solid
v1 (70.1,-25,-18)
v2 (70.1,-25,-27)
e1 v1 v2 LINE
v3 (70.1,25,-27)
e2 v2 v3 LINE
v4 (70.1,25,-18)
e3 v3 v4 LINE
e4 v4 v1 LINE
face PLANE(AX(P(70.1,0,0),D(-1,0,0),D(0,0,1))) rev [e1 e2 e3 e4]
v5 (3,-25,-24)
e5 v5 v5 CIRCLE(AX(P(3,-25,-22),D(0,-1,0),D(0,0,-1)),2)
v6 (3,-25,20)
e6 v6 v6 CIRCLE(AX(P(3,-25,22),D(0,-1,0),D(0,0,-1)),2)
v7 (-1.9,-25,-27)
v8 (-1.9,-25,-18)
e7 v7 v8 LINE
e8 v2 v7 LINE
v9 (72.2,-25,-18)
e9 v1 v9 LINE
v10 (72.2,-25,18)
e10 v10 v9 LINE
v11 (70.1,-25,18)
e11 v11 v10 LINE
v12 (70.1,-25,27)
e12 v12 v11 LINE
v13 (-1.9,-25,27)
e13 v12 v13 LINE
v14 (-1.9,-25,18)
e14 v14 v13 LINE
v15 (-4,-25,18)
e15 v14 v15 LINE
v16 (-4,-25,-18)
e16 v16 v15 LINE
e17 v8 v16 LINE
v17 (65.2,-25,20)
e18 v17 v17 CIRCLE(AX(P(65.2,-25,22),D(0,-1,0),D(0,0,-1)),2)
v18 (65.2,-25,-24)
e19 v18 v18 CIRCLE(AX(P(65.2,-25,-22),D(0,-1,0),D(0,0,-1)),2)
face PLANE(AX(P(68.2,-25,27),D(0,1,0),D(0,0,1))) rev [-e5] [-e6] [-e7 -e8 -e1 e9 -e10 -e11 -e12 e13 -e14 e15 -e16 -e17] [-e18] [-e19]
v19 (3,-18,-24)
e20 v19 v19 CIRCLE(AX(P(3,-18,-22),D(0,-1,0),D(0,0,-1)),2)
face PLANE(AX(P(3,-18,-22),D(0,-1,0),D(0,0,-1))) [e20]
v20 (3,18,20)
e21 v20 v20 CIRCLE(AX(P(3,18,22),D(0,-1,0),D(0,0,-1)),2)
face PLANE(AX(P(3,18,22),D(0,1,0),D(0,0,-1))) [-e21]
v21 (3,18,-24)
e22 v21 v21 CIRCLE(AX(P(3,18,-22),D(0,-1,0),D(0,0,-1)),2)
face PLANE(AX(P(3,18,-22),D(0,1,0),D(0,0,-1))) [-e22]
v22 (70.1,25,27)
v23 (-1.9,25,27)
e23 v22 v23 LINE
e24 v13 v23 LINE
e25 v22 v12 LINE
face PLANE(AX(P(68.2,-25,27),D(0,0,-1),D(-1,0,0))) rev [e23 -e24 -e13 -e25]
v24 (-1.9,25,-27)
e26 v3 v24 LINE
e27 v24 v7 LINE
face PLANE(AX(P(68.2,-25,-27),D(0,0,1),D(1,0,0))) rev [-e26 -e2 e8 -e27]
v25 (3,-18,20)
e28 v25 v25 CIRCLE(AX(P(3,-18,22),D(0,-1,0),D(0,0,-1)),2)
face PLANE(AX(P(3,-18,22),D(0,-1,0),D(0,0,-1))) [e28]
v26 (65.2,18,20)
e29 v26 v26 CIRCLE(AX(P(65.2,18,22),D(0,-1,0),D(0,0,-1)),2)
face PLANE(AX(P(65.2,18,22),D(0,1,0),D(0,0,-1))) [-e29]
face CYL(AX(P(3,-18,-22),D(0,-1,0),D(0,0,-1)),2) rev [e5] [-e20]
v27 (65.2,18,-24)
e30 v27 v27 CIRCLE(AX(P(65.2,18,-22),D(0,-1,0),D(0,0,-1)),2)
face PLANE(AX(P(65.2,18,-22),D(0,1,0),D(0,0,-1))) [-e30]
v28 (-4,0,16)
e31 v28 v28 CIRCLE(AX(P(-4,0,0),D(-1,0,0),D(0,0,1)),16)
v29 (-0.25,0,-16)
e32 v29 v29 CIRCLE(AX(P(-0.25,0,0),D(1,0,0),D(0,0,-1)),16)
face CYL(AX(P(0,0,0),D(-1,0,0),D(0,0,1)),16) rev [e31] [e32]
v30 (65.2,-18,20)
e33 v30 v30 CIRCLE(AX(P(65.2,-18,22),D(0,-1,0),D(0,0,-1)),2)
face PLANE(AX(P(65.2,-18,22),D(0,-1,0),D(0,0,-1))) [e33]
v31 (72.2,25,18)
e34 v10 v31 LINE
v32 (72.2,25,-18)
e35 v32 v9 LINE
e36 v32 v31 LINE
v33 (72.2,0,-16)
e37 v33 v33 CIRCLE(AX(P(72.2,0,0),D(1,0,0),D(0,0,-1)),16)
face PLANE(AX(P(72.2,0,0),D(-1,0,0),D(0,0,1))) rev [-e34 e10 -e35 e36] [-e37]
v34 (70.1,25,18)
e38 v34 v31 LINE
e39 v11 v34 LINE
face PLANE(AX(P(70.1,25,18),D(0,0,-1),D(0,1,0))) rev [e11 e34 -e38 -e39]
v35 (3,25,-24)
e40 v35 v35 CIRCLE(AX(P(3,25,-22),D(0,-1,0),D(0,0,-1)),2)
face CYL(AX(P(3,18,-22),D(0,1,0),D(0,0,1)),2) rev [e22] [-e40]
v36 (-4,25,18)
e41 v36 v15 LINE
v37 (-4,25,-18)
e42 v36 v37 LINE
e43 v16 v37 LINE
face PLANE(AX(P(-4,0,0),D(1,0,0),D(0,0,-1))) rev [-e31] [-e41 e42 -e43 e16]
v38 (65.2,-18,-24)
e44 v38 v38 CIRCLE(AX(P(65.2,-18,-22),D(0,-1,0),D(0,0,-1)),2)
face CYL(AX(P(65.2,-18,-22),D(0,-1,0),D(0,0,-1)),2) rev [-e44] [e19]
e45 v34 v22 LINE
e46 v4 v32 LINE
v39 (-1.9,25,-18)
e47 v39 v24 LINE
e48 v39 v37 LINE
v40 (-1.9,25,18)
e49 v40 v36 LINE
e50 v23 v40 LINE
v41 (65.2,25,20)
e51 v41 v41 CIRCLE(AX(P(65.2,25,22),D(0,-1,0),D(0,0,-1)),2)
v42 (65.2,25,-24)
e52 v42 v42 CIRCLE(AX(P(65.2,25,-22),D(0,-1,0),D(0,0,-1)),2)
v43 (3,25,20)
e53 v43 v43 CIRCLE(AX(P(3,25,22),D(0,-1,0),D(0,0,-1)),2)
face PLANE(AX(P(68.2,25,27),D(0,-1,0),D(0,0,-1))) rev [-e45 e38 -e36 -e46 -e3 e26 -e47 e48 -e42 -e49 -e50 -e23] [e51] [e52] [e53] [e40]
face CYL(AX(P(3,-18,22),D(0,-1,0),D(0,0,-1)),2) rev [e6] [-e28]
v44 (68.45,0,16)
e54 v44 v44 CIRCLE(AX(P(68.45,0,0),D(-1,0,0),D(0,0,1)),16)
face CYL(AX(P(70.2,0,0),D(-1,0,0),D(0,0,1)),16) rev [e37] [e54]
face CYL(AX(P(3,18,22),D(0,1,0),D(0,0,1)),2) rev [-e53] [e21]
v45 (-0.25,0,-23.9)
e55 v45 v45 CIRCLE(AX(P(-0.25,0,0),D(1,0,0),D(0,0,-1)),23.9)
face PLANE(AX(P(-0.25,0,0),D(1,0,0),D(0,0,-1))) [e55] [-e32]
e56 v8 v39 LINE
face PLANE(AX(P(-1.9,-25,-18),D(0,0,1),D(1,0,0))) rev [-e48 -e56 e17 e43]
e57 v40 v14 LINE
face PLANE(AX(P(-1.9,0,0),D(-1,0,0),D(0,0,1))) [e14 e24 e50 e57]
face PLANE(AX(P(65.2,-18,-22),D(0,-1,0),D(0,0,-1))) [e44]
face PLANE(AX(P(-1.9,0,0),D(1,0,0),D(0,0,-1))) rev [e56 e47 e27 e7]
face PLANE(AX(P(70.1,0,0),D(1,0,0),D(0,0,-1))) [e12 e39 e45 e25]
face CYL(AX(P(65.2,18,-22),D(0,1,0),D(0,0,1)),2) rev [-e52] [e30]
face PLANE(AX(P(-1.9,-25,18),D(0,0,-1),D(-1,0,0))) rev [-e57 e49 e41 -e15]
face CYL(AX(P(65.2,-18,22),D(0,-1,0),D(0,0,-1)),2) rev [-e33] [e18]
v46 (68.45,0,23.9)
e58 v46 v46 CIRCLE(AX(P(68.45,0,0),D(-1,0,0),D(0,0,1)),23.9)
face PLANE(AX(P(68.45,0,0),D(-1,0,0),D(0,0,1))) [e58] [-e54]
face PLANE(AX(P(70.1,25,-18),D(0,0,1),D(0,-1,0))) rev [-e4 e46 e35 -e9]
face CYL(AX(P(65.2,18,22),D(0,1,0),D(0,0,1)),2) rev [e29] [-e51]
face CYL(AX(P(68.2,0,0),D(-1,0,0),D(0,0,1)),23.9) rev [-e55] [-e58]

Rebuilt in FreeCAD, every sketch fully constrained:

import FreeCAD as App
import Part
import Sketcher

doc = App.newDocument("Part")
body = doc.addObject("PartDesign::Body", "Body")

# Sketch on YZ plane
sketch1 = body.newObject("Sketcher::SketchObject", "Sketch")
sketch1.AttachmentSupport = (doc.getObject("YZ_Plane"), [""])
sketch1.MapMode = "FlatFace"
sketch1.addGeometry([
    Part.LineSegment(App.Vector(25, 27, 0), App.Vector(-25, 27, 0)),  # 0
    Part.LineSegment(App.Vector(-25, 27, 0), App.Vector(-25, -27, 0)),  # 1
    Part.LineSegment(App.Vector(-25, -27, 0), App.Vector(25, -27, 0)),  # 2
    Part.LineSegment(App.Vector(25, -27, 0), App.Vector(25, 27, 0)),  # 3
    Part.Circle(App.Vector(0, 0, 0), App.Vector(0, 0, 1), 23.9),  # 4
], False)
sketch1.addConstraint([
    Sketcher.Constraint("Coincident", 0, 2, 1, 1),
    Sketcher.Constraint("Coincident", 1, 2, 2, 1),
    Sketcher.Constraint("Coincident", 2, 2, 3, 1),
    Sketcher.Constraint("Coincident", 3, 2, 0, 1),
    Sketcher.Constraint("Horizontal", 0),
    Sketcher.Constraint("Vertical", 1),
    Sketcher.Constraint("Horizontal", 2),
    Sketcher.Constraint("Vertical", 3),
    Sketcher.Constraint("Coincident", 4, 3, -1, 1),
    Sketcher.Constraint("Symmetric", 0, 2, 2, 2, -1, 1),
    Sketcher.Constraint("Diameter", 4, 47.8),
    Sketcher.Constraint("DistanceX", 0, 2, 0, 1, 50.0),
    Sketcher.Constraint("DistanceY", 1, 2, 1, 1, 54.0),
])
pad1 = body.newObject("PartDesign::Pad", "Pad")
pad1.Profile = sketch1
pad1.Length = 68.2

# Sketch on YZ plane
sketch2 = body.newObject("Sketcher::SketchObject", "Sketch001")
sketch2.AttachmentSupport = (doc.getObject("YZ_Plane"), [""])
sketch2.MapMode = "FlatFace"
sketch2.AttachmentOffset = App.Placement(App.Vector(0, 0, 68.2), App.Rotation())
sketch2.addGeometry([
    Part.LineSegment(App.Vector(25, 27, 0), App.Vector(-25, 27, 0)),  # 0
    Part.LineSegment(App.Vector(-25, 27, 0), App.Vector(-25, -27, 0)),  # 1
    Part.LineSegment(App.Vector(-25, -27, 0), App.Vector(25, -27, 0)),  # 2
    Part.LineSegment(App.Vector(25, -27, 0), App.Vector(25, 27, 0)),  # 3
    Part.Circle(App.Vector(0, 0, 0), App.Vector(0, 0, 1), 16),  # 4
], False)
sketch2.addConstraint([
    Sketcher.Constraint("Coincident", 0, 2, 1, 1),
    Sketcher.Constraint("Coincident", 1, 2, 2, 1),
    Sketcher.Constraint("Coincident", 2, 2, 3, 1),
    Sketcher.Constraint("Coincident", 3, 2, 0, 1),
    Sketcher.Constraint("Horizontal", 0),
    Sketcher.Constraint("Vertical", 1),
    Sketcher.Constraint("Horizontal", 2),
    Sketcher.Constraint("Vertical", 3),
    Sketcher.Constraint("Coincident", 4, 3, -1, 1),
    Sketcher.Constraint("Symmetric", 0, 2, 2, 2, -1, 1),
    Sketcher.Constraint("Diameter", 4, 32.0),
    Sketcher.Constraint("DistanceX", 0, 2, 0, 1, 50.0),
    Sketcher.Constraint("DistanceY", 1, 2, 1, 1, 54.0),
])
pad2 = body.newObject("PartDesign::Pad", "Pad001")
pad2.Profile = sketch2
pad2.Length = 2
doc.recompute()

linearpattern = body.newObject("PartDesign::LinearPattern", "LinearPattern")
linearpattern.Originals = [pad2]
linearpattern.Direction = (doc.getObject("X_Axis"), [""])
linearpattern.Mode = "offset"
linearpattern.Offset = 70.2
linearpattern.Occurrences = 2
linearpattern.Reversed = True
body.Tip = linearpattern

# Sketch on XZ plane
sketch3 = body.newObject("Sketcher::SketchObject", "Sketch002")
sketch3.AttachmentSupport = (doc.getObject("XZ_Plane"), [""])
sketch3.MapMode = "FlatFace"
sketch3.AttachmentOffset = App.Placement(App.Vector(0, 0, 25), App.Rotation())
sketch3.addGeometry([
    Part.Circle(App.Vector(3, 22, 0), App.Vector(0, 0, 1), 2),
    Part.Circle(App.Vector(65.2, 22, 0), App.Vector(0, 0, 1), 2),
    Part.Circle(App.Vector(65.2, -22, 0), App.Vector(0, 0, 1), 2),
    Part.Circle(App.Vector(3, -22, 0), App.Vector(0, 0, 1), 2),
], False)
sketch3.addConstraint([
    Sketcher.Constraint("Equal", 0, 1),
    Sketcher.Constraint("Equal", 1, 2),
    Sketcher.Constraint("Equal", 2, 3),
    Sketcher.Constraint("Symmetric", 1, 3, 2, 3, -1),
    Sketcher.Constraint("Symmetric", 0, 3, 3, 3, -1),
    Sketcher.Constraint("Horizontal", 0, 3, 1, 3),
    Sketcher.Constraint("Diameter", 0, 4.0),
    Sketcher.Constraint("DistanceX", -1, 1, 0, 3, 3.0),
    Sketcher.Constraint("DistanceY", -1, 1, 0, 3, 22.0),
    Sketcher.Constraint("DistanceX", -1, 1, 1, 3, 65.2),
])
pocket1 = body.newObject("PartDesign::Pocket", "Pocket")
pocket1.Profile = sketch3
pocket1.Length = 7
doc.recompute()

mirrored = body.newObject("PartDesign::Mirrored", "Mirrored")
mirrored.Originals = [pocket1]
mirrored.MirrorPlane = (doc.getObject("XZ_Plane"), [""])
body.Tip = mirrored

# Sketch on YZ plane
sketch4 = body.newObject("Sketcher::SketchObject", "Sketch003")
sketch4.AttachmentSupport = (doc.getObject("YZ_Plane"), [""])
sketch4.MapMode = "FlatFace"
sketch4.AttachmentOffset = App.Placement(App.Vector(0, 0, -4), App.Rotation())
sketch4.addGeometry([
    Part.LineSegment(App.Vector(25, -27, 0), App.Vector(-25, -27, 0)),  # 0
    Part.LineSegment(App.Vector(-25, -27, 0), App.Vector(-25, 27, 0)),  # 1
    Part.LineSegment(App.Vector(-25, 27, 0), App.Vector(25, 27, 0)),  # 2
    Part.LineSegment(App.Vector(25, 27, 0), App.Vector(25, -27, 0)),  # 3
    Part.Circle(App.Vector(0, 0, 0), App.Vector(0, 0, 1), 16),  # 4
], False)
sketch4.addConstraint([
    Sketcher.Constraint("Coincident", 0, 2, 1, 1),
    Sketcher.Constraint("Coincident", 1, 2, 2, 1),
    Sketcher.Constraint("Coincident", 2, 2, 3, 1),
    Sketcher.Constraint("Coincident", 3, 2, 0, 1),
    Sketcher.Constraint("Horizontal", 0),
    Sketcher.Constraint("Vertical", 1),
    Sketcher.Constraint("Horizontal", 2),
    Sketcher.Constraint("Vertical", 3),
    Sketcher.Constraint("Coincident", 4, 3, -1, 1),
    Sketcher.Constraint("Symmetric", 0, 2, 2, 2, -1, 1),
    Sketcher.Constraint("Diameter", 4, 32.0),
    Sketcher.Constraint("DistanceX", 0, 2, 0, 1, 50.0),
    Sketcher.Constraint("DistanceY", 1, 1, 1, 2, 54.0),
])
pad3 = body.newObject("PartDesign::Pad", "Pad002")
pad3.Profile = sketch4
pad3.Length = 2

# Sketch on YZ plane
sketch5 = body.newObject("Sketcher::SketchObject", "Sketch004")
sketch5.AttachmentSupport = (doc.getObject("YZ_Plane"), [""])
sketch5.MapMode = "FlatFace"
sketch5.AttachmentOffset = App.Placement(App.Vector(0, 0, 70.2), App.Rotation())
sketch5.addGeometry([
    Part.LineSegment(App.Vector(25, 27, 0), App.Vector(-25, 27, 0)),  # 0
    Part.LineSegment(App.Vector(-25, 27, 0), App.Vector(-25, -27, 0)),  # 1
    Part.LineSegment(App.Vector(-25, -27, 0), App.Vector(25, -27, 0)),  # 2
    Part.LineSegment(App.Vector(25, -27, 0), App.Vector(25, 27, 0)),  # 3
    Part.Circle(App.Vector(0, 0, 0), App.Vector(0, 0, 1), 16),  # 4
], False)
sketch5.addConstraint([
    Sketcher.Constraint("Coincident", 0, 2, 1, 1),
    Sketcher.Constraint("Coincident", 1, 2, 2, 1),
    Sketcher.Constraint("Coincident", 2, 2, 3, 1),
    Sketcher.Constraint("Coincident", 3, 2, 0, 1),
    Sketcher.Constraint("Horizontal", 0),
    Sketcher.Constraint("Vertical", 1),
    Sketcher.Constraint("Horizontal", 2),
    Sketcher.Constraint("Vertical", 3),
    Sketcher.Constraint("Coincident", 4, 3, -1, 1),
    Sketcher.Constraint("Symmetric", 0, 2, 2, 2, -1, 1),
    Sketcher.Constraint("Diameter", 4, 32.0),
    Sketcher.Constraint("DistanceX", 0, 2, 0, 1, 50.0),
    Sketcher.Constraint("DistanceY", 1, 2, 1, 1, 54.0),
])
pad4 = body.newObject("PartDesign::Pad", "Pad003")
pad4.Profile = sketch5
pad4.Length = 2

# Sketch on YZ plane
sketch6 = body.newObject("Sketcher::SketchObject", "Sketch005")
sketch6.AttachmentSupport = (doc.getObject("YZ_Plane"), [""])
sketch6.MapMode = "FlatFace"
sketch6.AttachmentOffset = App.Placement(App.Vector(0, 0, 68.2), App.Rotation())
sketch6.addGeometry(Part.Circle(App.Vector(0, 0, 0), App.Vector(0, 0, 1), 23.9), False)
sketch6.addConstraint([
    Sketcher.Constraint("Coincident", 0, 3, -1, 1),
    Sketcher.Constraint("Diameter", 0, 47.8),
])
pocket2 = body.newObject("PartDesign::Pocket", "Pocket001")
pocket2.Profile = sketch6
pocket2.Length = 0.25
pocket2.Reversed = True

# Sketch on YZ plane
sketch7 = body.newObject("Sketcher::SketchObject", "Sketch006")
sketch7.AttachmentSupport = (doc.getObject("YZ_Plane"), [""])
sketch7.MapMode = "FlatFace"
sketch7.AttachmentOffset = App.Placement(App.Vector(0, 0, -0.25), App.Rotation())
sketch7.addGeometry(Part.Circle(App.Vector(0, 0, 0), App.Vector(0, 0, 1), 23.9), False)
sketch7.addConstraint([
    Sketcher.Constraint("Coincident", 0, 3, -1, 1),
    Sketcher.Constraint("Diameter", 0, 47.8),
])
pocket3 = body.newObject("PartDesign::Pocket", "Pocket002")
pocket3.Profile = sketch7
pocket3.Length = 0.25
pocket3.Reversed = True

# Sketch on YZ plane
sketch8 = body.newObject("Sketcher::SketchObject", "Sketch007")
sketch8.AttachmentSupport = (doc.getObject("YZ_Plane"), [""])
sketch8.MapMode = "FlatFace"
sketch8.AttachmentOffset = App.Placement(App.Vector(0, 0, 72.2), App.Rotation())
sketch8.addGeometry([
    Part.LineSegment(App.Vector(25, 27, 0), App.Vector(-25, 27, 0)),  # 0
    Part.LineSegment(App.Vector(-25, 27, 0), App.Vector(-25, 18, 0)),  # 1
    Part.LineSegment(App.Vector(-25, 18, 0), App.Vector(25, 18, 0)),  # 2
    Part.LineSegment(App.Vector(25, 18, 0), App.Vector(25, 27, 0)),  # 3
    Part.LineSegment(App.Vector(25, -18, 0), App.Vector(-25, -18, 0)),  # 4
    Part.LineSegment(App.Vector(-25, -18, 0), App.Vector(-25, -27, 0)),  # 5
    Part.LineSegment(App.Vector(-25, -27, 0), App.Vector(25, -27, 0)),  # 6
    Part.LineSegment(App.Vector(25, -27, 0), App.Vector(25, -18, 0)),  # 7
], False)
sketch8.addConstraint([
    Sketcher.Constraint("Coincident", 0, 2, 1, 1),
    Sketcher.Constraint("Coincident", 1, 2, 2, 1),
    Sketcher.Constraint("Coincident", 2, 2, 3, 1),
    Sketcher.Constraint("Coincident", 3, 2, 0, 1),
    Sketcher.Constraint("Coincident", 4, 2, 5, 1),
    Sketcher.Constraint("Coincident", 5, 2, 6, 1),
    Sketcher.Constraint("Coincident", 6, 2, 7, 1),
    Sketcher.Constraint("Coincident", 7, 2, 4, 1),
    Sketcher.Constraint("Horizontal", 0),
    Sketcher.Constraint("Vertical", 1),
    Sketcher.Constraint("Horizontal", 2),
    Sketcher.Constraint("Vertical", 3),
    Sketcher.Constraint("Horizontal", 4),
    Sketcher.Constraint("Vertical", 5),
    Sketcher.Constraint("Horizontal", 6),
    Sketcher.Constraint("Vertical", 7),
    Sketcher.Constraint("Symmetric", 2, 2, 4, 2, -1, 1),
    Sketcher.Constraint("Symmetric", 0, 2, 6, 2, -1, 1),
    Sketcher.Constraint("Vertical", 1, 2, 4, 2),
    Sketcher.Constraint("DistanceX", 0, 2, 0, 1, 50.0),
    Sketcher.Constraint("DistanceY", 1, 2, 1, 1, 9.0),
    Sketcher.Constraint("DistanceY", -1, 1, 0, 2, 27.0),
])
pocket4 = body.newObject("PartDesign::Pocket", "Pocket003")
pocket4.Profile = sketch8
pocket4.Length = 2.1

# Sketch on YZ plane
sketch9 = body.newObject("Sketcher::SketchObject", "Sketch008")
sketch9.AttachmentSupport = (doc.getObject("YZ_Plane"), [""])
sketch9.MapMode = "FlatFace"
sketch9.AttachmentOffset = App.Placement(App.Vector(0, 0, -4), App.Rotation())
sketch9.addGeometry([
    Part.LineSegment(App.Vector(25, -27, 0), App.Vector(-25, -27, 0)),  # 0
    Part.LineSegment(App.Vector(-25, -27, 0), App.Vector(-25, -18, 0)),  # 1
    Part.LineSegment(App.Vector(-25, -18, 0), App.Vector(25, -18, 0)),  # 2
    Part.LineSegment(App.Vector(25, -18, 0), App.Vector(25, -27, 0)),  # 3
    Part.LineSegment(App.Vector(25, 18, 0), App.Vector(-25, 18, 0)),  # 4
    Part.LineSegment(App.Vector(-25, 18, 0), App.Vector(-25, 27, 0)),  # 5
    Part.LineSegment(App.Vector(-25, 27, 0), App.Vector(25, 27, 0)),  # 6
    Part.LineSegment(App.Vector(25, 27, 0), App.Vector(25, 18, 0)),  # 7
], False)
sketch9.addConstraint([
    Sketcher.Constraint("Coincident", 0, 2, 1, 1),
    Sketcher.Constraint("Coincident", 1, 2, 2, 1),
    Sketcher.Constraint("Coincident", 2, 2, 3, 1),
    Sketcher.Constraint("Coincident", 3, 2, 0, 1),
    Sketcher.Constraint("Coincident", 4, 2, 5, 1),
    Sketcher.Constraint("Coincident", 5, 2, 6, 1),
    Sketcher.Constraint("Coincident", 6, 2, 7, 1),
    Sketcher.Constraint("Coincident", 7, 2, 4, 1),
    Sketcher.Constraint("Horizontal", 0),
    Sketcher.Constraint("Vertical", 1),
    Sketcher.Constraint("Horizontal", 2),
    Sketcher.Constraint("Vertical", 3),
    Sketcher.Constraint("Horizontal", 4),
    Sketcher.Constraint("Vertical", 5),
    Sketcher.Constraint("Horizontal", 6),
    Sketcher.Constraint("Vertical", 7),
    Sketcher.Constraint("Symmetric", 2, 2, 4, 2, -1, 1),
    Sketcher.Constraint("Symmetric", 0, 2, 6, 2, -1, 1),
    Sketcher.Constraint("Vertical", 1, 2, 4, 2),
    Sketcher.Constraint("DistanceX", 0, 2, 0, 1, 50.0),
    Sketcher.Constraint("DistanceY", 1, 1, 1, 2, 9.0),
    Sketcher.Constraint("DistanceY", 0, 2, -1, 1, 27.0),
])
pocket5 = body.newObject("PartDesign::Pocket", "Pocket004")
pocket5.Profile = sketch9
pocket5.Length = 2.1
pocket5.Reversed = True

doc.recompute()
